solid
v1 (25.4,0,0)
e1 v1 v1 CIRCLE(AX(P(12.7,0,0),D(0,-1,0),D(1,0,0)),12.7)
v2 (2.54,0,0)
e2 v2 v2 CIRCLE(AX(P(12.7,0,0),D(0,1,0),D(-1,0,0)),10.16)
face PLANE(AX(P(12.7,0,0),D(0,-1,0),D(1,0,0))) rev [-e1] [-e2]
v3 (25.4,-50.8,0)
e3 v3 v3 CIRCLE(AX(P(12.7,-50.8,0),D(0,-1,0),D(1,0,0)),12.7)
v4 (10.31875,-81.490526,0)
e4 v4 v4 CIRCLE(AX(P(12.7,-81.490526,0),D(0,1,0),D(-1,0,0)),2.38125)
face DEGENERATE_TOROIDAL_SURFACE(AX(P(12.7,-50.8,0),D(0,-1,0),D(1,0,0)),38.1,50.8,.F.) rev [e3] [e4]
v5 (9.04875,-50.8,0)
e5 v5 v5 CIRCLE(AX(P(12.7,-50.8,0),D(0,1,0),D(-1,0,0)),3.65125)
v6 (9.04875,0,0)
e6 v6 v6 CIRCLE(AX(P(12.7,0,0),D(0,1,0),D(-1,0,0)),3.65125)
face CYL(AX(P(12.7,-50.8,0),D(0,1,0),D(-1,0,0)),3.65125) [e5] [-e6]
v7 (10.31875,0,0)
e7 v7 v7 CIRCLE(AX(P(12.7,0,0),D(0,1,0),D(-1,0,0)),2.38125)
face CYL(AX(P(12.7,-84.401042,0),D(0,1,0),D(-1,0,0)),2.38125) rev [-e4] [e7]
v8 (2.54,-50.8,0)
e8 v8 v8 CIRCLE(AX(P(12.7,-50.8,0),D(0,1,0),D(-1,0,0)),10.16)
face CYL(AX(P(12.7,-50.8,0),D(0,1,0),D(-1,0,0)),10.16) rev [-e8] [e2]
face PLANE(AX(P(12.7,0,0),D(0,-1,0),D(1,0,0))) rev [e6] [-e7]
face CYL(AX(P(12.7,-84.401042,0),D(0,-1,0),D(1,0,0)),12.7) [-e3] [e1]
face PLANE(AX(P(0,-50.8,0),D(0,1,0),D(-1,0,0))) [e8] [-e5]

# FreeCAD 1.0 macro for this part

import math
import FreeCAD as App
import Part
import Sketcher
from FreeCAD import Vector
Q = App.Units.Quantity

doc = App.newDocument("Part")
params = doc.addObject("Spreadsheet::Sheet", "Params")
for row, (alias, value) in enumerate([
    ("sketch1_radius", "2 in"),
    ("sketch1_height", "2 in"),
    ("sketch1_width", "0.5 in"),
    ("revolution_angle", "360 deg"),
    ("sketch2_diameter", "0.1875 in"),
    ("sketch3_diameter", "0.8 in"),
    ("pocket2_length", "2 in"),
], start=1):
    params.set(f"A{row}", alias)
    params.set(f"B{row}", "=" + value)
    params.setAlias(f"B{row}", alias)

body = doc.addObject("PartDesign::Body", "Body")

sketch1 = doc.addObject("Sketcher::SketchObject", "Sketch")
body.addObject(sketch1)
sketch1.AttachmentSupport = (doc.XY_Plane, [""])
sketch1.MapMode = "FlatFace"
sketch1.addGeometry([
    Part.LineSegment(Vector(0, 0, 0), Vector(0, -50.8, 0)),
    Part.ArcOfCircle(Part.Circle(Vector(50.8, -50.8, 0), Vector(0, 0, 1), 50.8), math.radians(-180), math.radians(-138.590378)),
    Part.LineSegment(Vector(12.7, -84.401042, 0), Vector(12.7, 0, 0)),
    Part.LineSegment(Vector(12.7, 0, 0), Vector(0, 0, 0)),
], False)
sketch1.addGeometry(Part.LineSegment(Vector(12.7, -84.401042, 0), Vector(12.7, 0, 0)), True)
sketch1.addConstraint([
    Sketcher.Constraint("Tangent", 0, 2, 1, 1),
    Sketcher.Constraint("Coincident", 1, 2, 2, 1),
    Sketcher.Constraint("Coincident", 2, 2, 3, 1),
    Sketcher.Constraint("Coincident", 3, 2, 0, 1),
    Sketcher.Constraint("Vertical", 0),
    Sketcher.Constraint("Vertical", 2),
    Sketcher.Constraint("Horizontal", 3),
    Sketcher.Constraint("Vertical", 4),
    Sketcher.Constraint("Coincident", 3, 2, -1, 1),
    Sketcher.Constraint("Coincident", 4, 1, 1, 2),
    Sketcher.Constraint("PointOnObject", 4, 2, -1),
    Sketcher.Constraint("Radius", 1, Q("2 in")),
    Sketcher.Constraint("DistanceY", 0, 2, 0, 1, Q("2 in")),
    Sketcher.Constraint("DistanceX", 3, 2, 3, 1, Q("0.5 in")),
])
sketch1.setExpression("Constraints[11]", "Params.sketch1_radius")
sketch1.setExpression("Constraints[12]", "Params.sketch1_height")
sketch1.setExpression("Constraints[13]", "Params.sketch1_width")
revolution = doc.addObject("PartDesign::Revolution", "Revolution")
body.addObject(revolution)
revolution.Profile = sketch1
revolution.ReferenceAxis = (sketch1, ["Axis0"])
revolution.setExpression("Angle", "Params.revolution_angle")

sketch2 = doc.addObject("Sketcher::SketchObject", "Sketch001")
body.addObject(sketch2)
sketch2.AttachmentSupport = (doc.XZ_Plane, [""])
sketch2.MapMode = "FlatFace"
sketch2.addGeometry(Part.Circle(Vector(12.7, 0, 0), Vector(0, 0, 1), 2.38125), False)
sketch2.addConstraint([
    Sketcher.Constraint("PointOnObject", 0, 3, -1),
    Sketcher.Constraint("Diameter", 0, Q("0.1875 in")),
    Sketcher.Constraint("DistanceX", -1, 1, 0, 3, Q("0.5 in")),
])
sketch2.setExpression("Constraints[1]", "Params.sketch2_diameter")
pocket1 = doc.addObject("PartDesign::Pocket", "Pocket")
body.addObject(pocket1)
pocket1.Profile = sketch2
pocket1.Type = "ThroughAll"
pocket1.Reversed = True

sketch3 = doc.addObject("Sketcher::SketchObject", "Sketch002")
body.addObject(sketch3)
sketch3.AttachmentSupport = (doc.XZ_Plane, [""])
sketch3.MapMode = "FlatFace"
sketch3.addGeometry([
    Part.Circle(Vector(12.7, 0, 0), Vector(0, 0, 1), 10.16),
    Part.Circle(Vector(12.7, 0, 0), Vector(0, 0, 1), 3.65125),
], False)
sketch3.addConstraint([
    Sketcher.Constraint("Coincident", 1, 3, 0, 3),
    Sketcher.Constraint("PointOnObject", 0, 3, -1),
    Sketcher.Constraint("Diameter", 0, Q("0.8 in")),
    Sketcher.Constraint("Diameter", 1, Q("0.2875 in")),
    Sketcher.Constraint("DistanceX", -1, 1, 0, 3, Q("0.5 in")),
])
sketch3.setExpression("Constraints[2]", "Params.sketch3_diameter")
pocket2 = doc.addObject("PartDesign::Pocket", "Pocket001")
body.addObject(pocket2)
pocket2.Profile = sketch3
pocket2.setExpression("Length", "Params.pocket2_length")
pocket2.Reversed = True

doc.recompute()
